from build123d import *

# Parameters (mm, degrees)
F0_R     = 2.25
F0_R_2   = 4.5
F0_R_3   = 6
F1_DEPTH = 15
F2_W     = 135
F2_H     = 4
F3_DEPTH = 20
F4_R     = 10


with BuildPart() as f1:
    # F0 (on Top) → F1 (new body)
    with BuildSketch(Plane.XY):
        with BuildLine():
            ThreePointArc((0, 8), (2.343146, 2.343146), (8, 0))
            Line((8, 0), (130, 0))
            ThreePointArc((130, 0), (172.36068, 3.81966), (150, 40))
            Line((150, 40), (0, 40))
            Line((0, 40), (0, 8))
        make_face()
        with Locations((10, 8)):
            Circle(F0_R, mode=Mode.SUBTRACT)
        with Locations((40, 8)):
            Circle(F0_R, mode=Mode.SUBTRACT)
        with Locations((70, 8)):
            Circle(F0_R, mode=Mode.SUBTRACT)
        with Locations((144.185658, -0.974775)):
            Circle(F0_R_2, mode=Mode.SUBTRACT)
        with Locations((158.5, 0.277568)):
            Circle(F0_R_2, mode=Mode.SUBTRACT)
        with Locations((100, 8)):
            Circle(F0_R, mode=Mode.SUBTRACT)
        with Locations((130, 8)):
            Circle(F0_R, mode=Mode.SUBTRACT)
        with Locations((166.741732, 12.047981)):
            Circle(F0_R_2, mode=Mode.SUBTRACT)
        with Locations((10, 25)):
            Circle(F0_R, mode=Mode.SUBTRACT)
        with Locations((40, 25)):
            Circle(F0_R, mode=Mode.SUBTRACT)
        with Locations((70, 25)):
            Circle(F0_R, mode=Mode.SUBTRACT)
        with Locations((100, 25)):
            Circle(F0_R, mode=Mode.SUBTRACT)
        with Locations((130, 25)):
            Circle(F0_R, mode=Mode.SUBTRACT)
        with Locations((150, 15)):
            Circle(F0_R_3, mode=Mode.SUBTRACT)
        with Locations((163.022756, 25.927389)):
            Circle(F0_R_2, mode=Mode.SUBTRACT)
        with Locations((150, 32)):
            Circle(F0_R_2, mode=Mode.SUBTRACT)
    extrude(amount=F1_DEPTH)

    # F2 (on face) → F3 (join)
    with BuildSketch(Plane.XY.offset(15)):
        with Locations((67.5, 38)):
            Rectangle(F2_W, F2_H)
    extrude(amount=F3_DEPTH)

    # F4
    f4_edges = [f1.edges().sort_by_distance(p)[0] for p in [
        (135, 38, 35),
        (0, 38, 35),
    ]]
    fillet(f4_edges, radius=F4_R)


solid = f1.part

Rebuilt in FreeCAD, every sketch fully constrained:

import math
import FreeCAD as App
import Part
import Sketcher
from FreeCAD import Vector
Q = App.Units.Quantity


def edges_at(feature, points):
    """Names of the edges that pass closest to the given points."""
    edges = feature.Shape.Edges
    near = lambda p: min(range(len(edges)), key=lambda i: edges[i].distToShape(Part.Vertex(*p))[0])
    return sorted({f"Edge{near(p) + 1}" for p in points})


def add_polygon(sketch, points):
    """Adds a closed chain of lines whose ends are joined by coincident constraints."""
    first, n = sketch.GeometryCount, len(points)
    for a, b in zip(points, points[1:] + points[:1]):
        sketch.addGeometry(Part.LineSegment(App.Vector(*a, 0), App.Vector(*b, 0)), False)
    for i in range(n):
        sketch.addConstraint(Sketcher.Constraint("Coincident", first + i, 2, first + (i + 1) % n, 1))

doc = App.newDocument("Part")
body = doc.addObject("PartDesign::Body", "Body")

# Sketch on XY plane
sketch1 = doc.addObject("Sketcher::SketchObject", "Sketch")
body.addObject(sketch1)
sketch1.AttachmentSupport = (doc.XY_Plane, [""])
sketch1.MapMode = "FlatFace"
sketch1.addGeometry([
    Part.ArcOfCircle(Part.Circle(Vector(8.000001, 8.000001, 0), Vector(0, 0, 1), 8.000001), math.radians(-179.999994), math.radians(-90.000006)),  # 0
    Part.LineSegment(Vector(8, 0, 0), Vector(130, 0, 0)),  # 1
    Part.ArcOfCircle(Part.Circle(Vector(150, 15, 0), Vector(0, 0, 1), 25), math.radians(-143.130103), math.radians(90)),  # 2
    Part.LineSegment(Vector(150, 40, 0), Vector(0, 40, 0)),  # 3
    Part.LineSegment(Vector(0, 40, 0), Vector(0, 8, 0)),  # 4
    Part.Circle(Vector(10, 8, 0), Vector(0, 0, 1), 2.25),  # 5
    Part.Circle(Vector(40, 8, 0), Vector(0, 0, 1), 2.25),  # 6
    Part.Circle(Vector(70, 8, 0), Vector(0, 0, 1), 2.25),  # 7
    Part.Circle(Vector(144.185658, -0.974775, 0), Vector(0, 0, 1), 4.5),  # 8
    Part.Circle(Vector(158.5, 0.277568, 0), Vector(0, 0, 1), 4.5),  # 9
    Part.Circle(Vector(100, 8, 0), Vector(0, 0, 1), 2.25),  # 10
    Part.Circle(Vector(130, 8, 0), Vector(0, 0, 1), 2.25),  # 11
    Part.Circle(Vector(150, 15, 0), Vector(0, 0, 1), 6),  # 12
    Part.Circle(Vector(166.741732, 12.047981, 0), Vector(0, 0, 1), 4.5),  # 13
    Part.Circle(Vector(10, 25, 0), Vector(0, 0, 1), 2.25),  # 14
    Part.Circle(Vector(40, 25, 0), Vector(0, 0, 1), 2.25),  # 15
    Part.Circle(Vector(70, 25, 0), Vector(0, 0, 1), 2.25),  # 16
    Part.Circle(Vector(100, 25, 0), Vector(0, 0, 1), 2.25),  # 17
    Part.Circle(Vector(130, 25, 0), Vector(0, 0, 1), 2.25),  # 18
    Part.Circle(Vector(163.022756, 25.927389, 0), Vector(0, 0, 1), 4.5),  # 19
    Part.Circle(Vector(150, 32, 0), Vector(0, 0, 1), 4.5),  # 20
], False)
sketch1.addConstraint([
    Sketcher.Constraint("Tangent", 0, 2, 1, 1),
    Sketcher.Constraint("Coincident", 1, 2, 2, 1),
    Sketcher.Constraint("Tangent", 2, 2, 3, 1),
    Sketcher.Constraint("Coincident", 3, 2, 4, 1),
    Sketcher.Constraint("Tangent", 4, 2, 0, 1),
    Sketcher.Constraint("Horizontal", 1),
    Sketcher.Constraint("Horizontal", 3),
    Sketcher.Constraint("Vertical", 4),
    Sketcher.Constraint("Coincident", 12, 3, 2, 3),
    Sketcher.Constraint("Equal", 5, 6),
    Sketcher.Constraint("Equal", 6, 7),
    Sketcher.Constraint("Equal", 8, 9),
    Sketcher.Constraint("Equal", 7, 10),
    Sketcher.Constraint("Equal", 10, 11),
    Sketcher.Constraint("Equal", 9, 13),
    Sketcher.Constraint("Equal", 11, 14),
    Sketcher.Constraint("Equal", 14, 15),
    Sketcher.Constraint("Equal", 15, 16),
    Sketcher.Constraint("Equal", 16, 17),
    Sketcher.Constraint("Equal", 17, 18),
    Sketcher.Constraint("Equal", 13, 19),
    Sketcher.Constraint("Equal", 19, 20),
    Sketcher.Constraint("PointOnObject", 0, 2, -1),
    Sketcher.Constraint("PointOnObject", 3, 2, -2),
    Sketcher.Constraint("Horizontal", 0, 3, 5, 3),
    Sketcher.Constraint("Horizontal", 5, 3, 6, 3),
    Sketcher.Constraint("Horizontal", 6, 3, 7, 3),
    Sketcher.Constraint("Horizontal", 7, 3, 10, 3),
    Sketcher.Constraint("Horizontal", 10, 3, 11, 3),
    Sketcher.Constraint("Horizontal", 14, 3, 15, 3),
    Sketcher.Constraint("Horizontal", 15, 3, 16, 3),
    Sketcher.Constraint("Horizontal", 16, 3, 17, 3),
    Sketcher.Constraint("Horizontal", 17, 3, 18, 3),
    Sketcher.Constraint("Vertical", 5, 3, 14, 3),
    Sketcher.Constraint("Vertical", 6, 3, 15, 3),
    Sketcher.Constraint("Vertical", 7, 3, 16, 3),
    Sketcher.Constraint("Vertical", 10, 3, 17, 3),
    Sketcher.Constraint("Vertical", 11, 3, 18, 3),
    Sketcher.Constraint("Vertical", 12, 3, 20, 3),
    Sketcher.Constraint("Vertical", 18, 3, 1, 2),
    Sketcher.Constraint("Diameter", 8, Q("9 mm")),
    Sketcher.Constraint("Diameter", 12, Q("12 mm")),
    Sketcher.Constraint("Radius", 0, Q("8.000001 mm")),
    Sketcher.Constraint("Radius", 2, Q("25 mm")),
    Sketcher.Constraint("Diameter", 5, Q("4.5 mm")),
    Sketcher.Constraint("DistanceX", 1, 1, 1, 2, Q("122 mm")),
    Sketcher.Constraint("DistanceX", 3, 2, 3, 1, Q("150 mm")),
    Sketcher.Constraint("DistanceX", -1, 1, 5, 3, Q("10 mm")),
    Sketcher.Constraint("DistanceX", -1, 1, 6, 3, Q("40 mm")),
    Sketcher.Constraint("DistanceX", -1, 1, 7, 3, Q("70 mm")),
    Sketcher.Constraint("DistanceX", -1, 1, 10, 3, Q("100 mm")),
    Sketcher.Constraint("DistanceY", -1, 1, 14, 3, Q("25 mm")),
    Sketcher.Constraint("DistanceY", -1, 1, 20, 3, Q("32 mm")),
    Sketcher.Constraint("DistanceX", -1, 1, 9, 3, Q("158.5 mm")),
    Sketcher.Constraint("DistanceY", -1, 1, 13, 3, Q("12.047981 mm")),
    Sketcher.Constraint("DistanceY", -1, 1, 19, 3, Q("25.927389 mm")),
    Sketcher.Constraint("DistanceY", 9, 3, 2, 3, Q("14.722432 mm")),
    Sketcher.Constraint("DistanceX", 2, 3, 13, 3, Q("16.741732 mm")),
    Sketcher.Constraint("DistanceX", -1, 1, 8, 3, Q("144.185658 mm")),
    Sketcher.Constraint("DistanceY", 8, 3, -1, 1, Q("0.974775 mm")),
    Sketcher.Constraint("DistanceX", -1, 1, 19, 3, Q("163.022756 mm")),
])
pad1 = doc.addObject("PartDesign::Pad", "Pad")
body.addObject(pad1)
pad1.Profile = sketch1
pad1.Length = 15

# Sketch on XY plane
sketch2 = doc.addObject("Sketcher::SketchObject", "Sketch001")
body.addObject(sketch2)
sketch2.AttachmentSupport = (doc.XY_Plane, [""])
sketch2.MapMode = "FlatFace"
sketch2.AttachmentOffset = App.Placement(Vector(0, 0, 15), App.Rotation())
add_polygon(sketch2, [(0, 40), (0, 36), (135, 36), (135, 40)])  # lines 0-3
sketch2.addConstraint([
    Sketcher.Constraint("Vertical", 0),
    Sketcher.Constraint("Horizontal", 1),
    Sketcher.Constraint("Vertical", 2),
    Sketcher.Constraint("Horizontal", 3),
    Sketcher.Constraint("PointOnObject", 0, 2, -2),
    Sketcher.Constraint("DistanceX", 1, 1, 1, 2, Q("135 mm")),
    Sketcher.Constraint("DistanceY", 0, 2, 0, 1, Q("4 mm")),
    Sketcher.Constraint("DistanceY", -1, 1, 0, 2, Q("36 mm")),
])
pad2 = doc.addObject("PartDesign::Pad", "Pad001")
body.addObject(pad2)
pad2.Profile = sketch2
pad2.Length = 20
doc.recompute()

fillet = doc.addObject("PartDesign::Fillet", "Fillet")
body.addObject(fillet)
fillet.Base = (pad2, edges_at(pad2, [(135, 38, 35), (0, 38, 35)]))
fillet.Radius = 10

doc.recompute()
